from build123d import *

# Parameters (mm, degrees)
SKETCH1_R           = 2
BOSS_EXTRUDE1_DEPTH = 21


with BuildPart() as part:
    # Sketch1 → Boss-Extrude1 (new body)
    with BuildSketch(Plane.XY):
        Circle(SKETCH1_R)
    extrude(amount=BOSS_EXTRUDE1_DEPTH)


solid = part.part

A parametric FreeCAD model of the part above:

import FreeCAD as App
import Part
import Sketcher

V = App.Vector
Q = App.Units.Quantity

doc = App.newDocument("Part")
body = doc.addObject("PartDesign::Body", "Body")

# Sketch on XY plane
sketch1 = body.newObject("Sketcher::SketchObject", "Sketch")
sketch1.AttachmentSupport = (doc.getObject("XY_Plane"), [""])
sketch1.MapMode = "FlatFace"
sketch1.addGeometry(Part.Circle(V(0, 0, 0), V(0, 0, 1), 2), False)
sketch1.addConstraint([
    Sketcher.Constraint("Coincident", 0, 3, -1, 1),
    Sketcher.Constraint("Diameter", 0, Q("4 mm")),
])
pad1 = body.newObject("PartDesign::Pad", "Pad")
pad1.Profile = sketch1
pad1.Length = 21

doc.recompute()
